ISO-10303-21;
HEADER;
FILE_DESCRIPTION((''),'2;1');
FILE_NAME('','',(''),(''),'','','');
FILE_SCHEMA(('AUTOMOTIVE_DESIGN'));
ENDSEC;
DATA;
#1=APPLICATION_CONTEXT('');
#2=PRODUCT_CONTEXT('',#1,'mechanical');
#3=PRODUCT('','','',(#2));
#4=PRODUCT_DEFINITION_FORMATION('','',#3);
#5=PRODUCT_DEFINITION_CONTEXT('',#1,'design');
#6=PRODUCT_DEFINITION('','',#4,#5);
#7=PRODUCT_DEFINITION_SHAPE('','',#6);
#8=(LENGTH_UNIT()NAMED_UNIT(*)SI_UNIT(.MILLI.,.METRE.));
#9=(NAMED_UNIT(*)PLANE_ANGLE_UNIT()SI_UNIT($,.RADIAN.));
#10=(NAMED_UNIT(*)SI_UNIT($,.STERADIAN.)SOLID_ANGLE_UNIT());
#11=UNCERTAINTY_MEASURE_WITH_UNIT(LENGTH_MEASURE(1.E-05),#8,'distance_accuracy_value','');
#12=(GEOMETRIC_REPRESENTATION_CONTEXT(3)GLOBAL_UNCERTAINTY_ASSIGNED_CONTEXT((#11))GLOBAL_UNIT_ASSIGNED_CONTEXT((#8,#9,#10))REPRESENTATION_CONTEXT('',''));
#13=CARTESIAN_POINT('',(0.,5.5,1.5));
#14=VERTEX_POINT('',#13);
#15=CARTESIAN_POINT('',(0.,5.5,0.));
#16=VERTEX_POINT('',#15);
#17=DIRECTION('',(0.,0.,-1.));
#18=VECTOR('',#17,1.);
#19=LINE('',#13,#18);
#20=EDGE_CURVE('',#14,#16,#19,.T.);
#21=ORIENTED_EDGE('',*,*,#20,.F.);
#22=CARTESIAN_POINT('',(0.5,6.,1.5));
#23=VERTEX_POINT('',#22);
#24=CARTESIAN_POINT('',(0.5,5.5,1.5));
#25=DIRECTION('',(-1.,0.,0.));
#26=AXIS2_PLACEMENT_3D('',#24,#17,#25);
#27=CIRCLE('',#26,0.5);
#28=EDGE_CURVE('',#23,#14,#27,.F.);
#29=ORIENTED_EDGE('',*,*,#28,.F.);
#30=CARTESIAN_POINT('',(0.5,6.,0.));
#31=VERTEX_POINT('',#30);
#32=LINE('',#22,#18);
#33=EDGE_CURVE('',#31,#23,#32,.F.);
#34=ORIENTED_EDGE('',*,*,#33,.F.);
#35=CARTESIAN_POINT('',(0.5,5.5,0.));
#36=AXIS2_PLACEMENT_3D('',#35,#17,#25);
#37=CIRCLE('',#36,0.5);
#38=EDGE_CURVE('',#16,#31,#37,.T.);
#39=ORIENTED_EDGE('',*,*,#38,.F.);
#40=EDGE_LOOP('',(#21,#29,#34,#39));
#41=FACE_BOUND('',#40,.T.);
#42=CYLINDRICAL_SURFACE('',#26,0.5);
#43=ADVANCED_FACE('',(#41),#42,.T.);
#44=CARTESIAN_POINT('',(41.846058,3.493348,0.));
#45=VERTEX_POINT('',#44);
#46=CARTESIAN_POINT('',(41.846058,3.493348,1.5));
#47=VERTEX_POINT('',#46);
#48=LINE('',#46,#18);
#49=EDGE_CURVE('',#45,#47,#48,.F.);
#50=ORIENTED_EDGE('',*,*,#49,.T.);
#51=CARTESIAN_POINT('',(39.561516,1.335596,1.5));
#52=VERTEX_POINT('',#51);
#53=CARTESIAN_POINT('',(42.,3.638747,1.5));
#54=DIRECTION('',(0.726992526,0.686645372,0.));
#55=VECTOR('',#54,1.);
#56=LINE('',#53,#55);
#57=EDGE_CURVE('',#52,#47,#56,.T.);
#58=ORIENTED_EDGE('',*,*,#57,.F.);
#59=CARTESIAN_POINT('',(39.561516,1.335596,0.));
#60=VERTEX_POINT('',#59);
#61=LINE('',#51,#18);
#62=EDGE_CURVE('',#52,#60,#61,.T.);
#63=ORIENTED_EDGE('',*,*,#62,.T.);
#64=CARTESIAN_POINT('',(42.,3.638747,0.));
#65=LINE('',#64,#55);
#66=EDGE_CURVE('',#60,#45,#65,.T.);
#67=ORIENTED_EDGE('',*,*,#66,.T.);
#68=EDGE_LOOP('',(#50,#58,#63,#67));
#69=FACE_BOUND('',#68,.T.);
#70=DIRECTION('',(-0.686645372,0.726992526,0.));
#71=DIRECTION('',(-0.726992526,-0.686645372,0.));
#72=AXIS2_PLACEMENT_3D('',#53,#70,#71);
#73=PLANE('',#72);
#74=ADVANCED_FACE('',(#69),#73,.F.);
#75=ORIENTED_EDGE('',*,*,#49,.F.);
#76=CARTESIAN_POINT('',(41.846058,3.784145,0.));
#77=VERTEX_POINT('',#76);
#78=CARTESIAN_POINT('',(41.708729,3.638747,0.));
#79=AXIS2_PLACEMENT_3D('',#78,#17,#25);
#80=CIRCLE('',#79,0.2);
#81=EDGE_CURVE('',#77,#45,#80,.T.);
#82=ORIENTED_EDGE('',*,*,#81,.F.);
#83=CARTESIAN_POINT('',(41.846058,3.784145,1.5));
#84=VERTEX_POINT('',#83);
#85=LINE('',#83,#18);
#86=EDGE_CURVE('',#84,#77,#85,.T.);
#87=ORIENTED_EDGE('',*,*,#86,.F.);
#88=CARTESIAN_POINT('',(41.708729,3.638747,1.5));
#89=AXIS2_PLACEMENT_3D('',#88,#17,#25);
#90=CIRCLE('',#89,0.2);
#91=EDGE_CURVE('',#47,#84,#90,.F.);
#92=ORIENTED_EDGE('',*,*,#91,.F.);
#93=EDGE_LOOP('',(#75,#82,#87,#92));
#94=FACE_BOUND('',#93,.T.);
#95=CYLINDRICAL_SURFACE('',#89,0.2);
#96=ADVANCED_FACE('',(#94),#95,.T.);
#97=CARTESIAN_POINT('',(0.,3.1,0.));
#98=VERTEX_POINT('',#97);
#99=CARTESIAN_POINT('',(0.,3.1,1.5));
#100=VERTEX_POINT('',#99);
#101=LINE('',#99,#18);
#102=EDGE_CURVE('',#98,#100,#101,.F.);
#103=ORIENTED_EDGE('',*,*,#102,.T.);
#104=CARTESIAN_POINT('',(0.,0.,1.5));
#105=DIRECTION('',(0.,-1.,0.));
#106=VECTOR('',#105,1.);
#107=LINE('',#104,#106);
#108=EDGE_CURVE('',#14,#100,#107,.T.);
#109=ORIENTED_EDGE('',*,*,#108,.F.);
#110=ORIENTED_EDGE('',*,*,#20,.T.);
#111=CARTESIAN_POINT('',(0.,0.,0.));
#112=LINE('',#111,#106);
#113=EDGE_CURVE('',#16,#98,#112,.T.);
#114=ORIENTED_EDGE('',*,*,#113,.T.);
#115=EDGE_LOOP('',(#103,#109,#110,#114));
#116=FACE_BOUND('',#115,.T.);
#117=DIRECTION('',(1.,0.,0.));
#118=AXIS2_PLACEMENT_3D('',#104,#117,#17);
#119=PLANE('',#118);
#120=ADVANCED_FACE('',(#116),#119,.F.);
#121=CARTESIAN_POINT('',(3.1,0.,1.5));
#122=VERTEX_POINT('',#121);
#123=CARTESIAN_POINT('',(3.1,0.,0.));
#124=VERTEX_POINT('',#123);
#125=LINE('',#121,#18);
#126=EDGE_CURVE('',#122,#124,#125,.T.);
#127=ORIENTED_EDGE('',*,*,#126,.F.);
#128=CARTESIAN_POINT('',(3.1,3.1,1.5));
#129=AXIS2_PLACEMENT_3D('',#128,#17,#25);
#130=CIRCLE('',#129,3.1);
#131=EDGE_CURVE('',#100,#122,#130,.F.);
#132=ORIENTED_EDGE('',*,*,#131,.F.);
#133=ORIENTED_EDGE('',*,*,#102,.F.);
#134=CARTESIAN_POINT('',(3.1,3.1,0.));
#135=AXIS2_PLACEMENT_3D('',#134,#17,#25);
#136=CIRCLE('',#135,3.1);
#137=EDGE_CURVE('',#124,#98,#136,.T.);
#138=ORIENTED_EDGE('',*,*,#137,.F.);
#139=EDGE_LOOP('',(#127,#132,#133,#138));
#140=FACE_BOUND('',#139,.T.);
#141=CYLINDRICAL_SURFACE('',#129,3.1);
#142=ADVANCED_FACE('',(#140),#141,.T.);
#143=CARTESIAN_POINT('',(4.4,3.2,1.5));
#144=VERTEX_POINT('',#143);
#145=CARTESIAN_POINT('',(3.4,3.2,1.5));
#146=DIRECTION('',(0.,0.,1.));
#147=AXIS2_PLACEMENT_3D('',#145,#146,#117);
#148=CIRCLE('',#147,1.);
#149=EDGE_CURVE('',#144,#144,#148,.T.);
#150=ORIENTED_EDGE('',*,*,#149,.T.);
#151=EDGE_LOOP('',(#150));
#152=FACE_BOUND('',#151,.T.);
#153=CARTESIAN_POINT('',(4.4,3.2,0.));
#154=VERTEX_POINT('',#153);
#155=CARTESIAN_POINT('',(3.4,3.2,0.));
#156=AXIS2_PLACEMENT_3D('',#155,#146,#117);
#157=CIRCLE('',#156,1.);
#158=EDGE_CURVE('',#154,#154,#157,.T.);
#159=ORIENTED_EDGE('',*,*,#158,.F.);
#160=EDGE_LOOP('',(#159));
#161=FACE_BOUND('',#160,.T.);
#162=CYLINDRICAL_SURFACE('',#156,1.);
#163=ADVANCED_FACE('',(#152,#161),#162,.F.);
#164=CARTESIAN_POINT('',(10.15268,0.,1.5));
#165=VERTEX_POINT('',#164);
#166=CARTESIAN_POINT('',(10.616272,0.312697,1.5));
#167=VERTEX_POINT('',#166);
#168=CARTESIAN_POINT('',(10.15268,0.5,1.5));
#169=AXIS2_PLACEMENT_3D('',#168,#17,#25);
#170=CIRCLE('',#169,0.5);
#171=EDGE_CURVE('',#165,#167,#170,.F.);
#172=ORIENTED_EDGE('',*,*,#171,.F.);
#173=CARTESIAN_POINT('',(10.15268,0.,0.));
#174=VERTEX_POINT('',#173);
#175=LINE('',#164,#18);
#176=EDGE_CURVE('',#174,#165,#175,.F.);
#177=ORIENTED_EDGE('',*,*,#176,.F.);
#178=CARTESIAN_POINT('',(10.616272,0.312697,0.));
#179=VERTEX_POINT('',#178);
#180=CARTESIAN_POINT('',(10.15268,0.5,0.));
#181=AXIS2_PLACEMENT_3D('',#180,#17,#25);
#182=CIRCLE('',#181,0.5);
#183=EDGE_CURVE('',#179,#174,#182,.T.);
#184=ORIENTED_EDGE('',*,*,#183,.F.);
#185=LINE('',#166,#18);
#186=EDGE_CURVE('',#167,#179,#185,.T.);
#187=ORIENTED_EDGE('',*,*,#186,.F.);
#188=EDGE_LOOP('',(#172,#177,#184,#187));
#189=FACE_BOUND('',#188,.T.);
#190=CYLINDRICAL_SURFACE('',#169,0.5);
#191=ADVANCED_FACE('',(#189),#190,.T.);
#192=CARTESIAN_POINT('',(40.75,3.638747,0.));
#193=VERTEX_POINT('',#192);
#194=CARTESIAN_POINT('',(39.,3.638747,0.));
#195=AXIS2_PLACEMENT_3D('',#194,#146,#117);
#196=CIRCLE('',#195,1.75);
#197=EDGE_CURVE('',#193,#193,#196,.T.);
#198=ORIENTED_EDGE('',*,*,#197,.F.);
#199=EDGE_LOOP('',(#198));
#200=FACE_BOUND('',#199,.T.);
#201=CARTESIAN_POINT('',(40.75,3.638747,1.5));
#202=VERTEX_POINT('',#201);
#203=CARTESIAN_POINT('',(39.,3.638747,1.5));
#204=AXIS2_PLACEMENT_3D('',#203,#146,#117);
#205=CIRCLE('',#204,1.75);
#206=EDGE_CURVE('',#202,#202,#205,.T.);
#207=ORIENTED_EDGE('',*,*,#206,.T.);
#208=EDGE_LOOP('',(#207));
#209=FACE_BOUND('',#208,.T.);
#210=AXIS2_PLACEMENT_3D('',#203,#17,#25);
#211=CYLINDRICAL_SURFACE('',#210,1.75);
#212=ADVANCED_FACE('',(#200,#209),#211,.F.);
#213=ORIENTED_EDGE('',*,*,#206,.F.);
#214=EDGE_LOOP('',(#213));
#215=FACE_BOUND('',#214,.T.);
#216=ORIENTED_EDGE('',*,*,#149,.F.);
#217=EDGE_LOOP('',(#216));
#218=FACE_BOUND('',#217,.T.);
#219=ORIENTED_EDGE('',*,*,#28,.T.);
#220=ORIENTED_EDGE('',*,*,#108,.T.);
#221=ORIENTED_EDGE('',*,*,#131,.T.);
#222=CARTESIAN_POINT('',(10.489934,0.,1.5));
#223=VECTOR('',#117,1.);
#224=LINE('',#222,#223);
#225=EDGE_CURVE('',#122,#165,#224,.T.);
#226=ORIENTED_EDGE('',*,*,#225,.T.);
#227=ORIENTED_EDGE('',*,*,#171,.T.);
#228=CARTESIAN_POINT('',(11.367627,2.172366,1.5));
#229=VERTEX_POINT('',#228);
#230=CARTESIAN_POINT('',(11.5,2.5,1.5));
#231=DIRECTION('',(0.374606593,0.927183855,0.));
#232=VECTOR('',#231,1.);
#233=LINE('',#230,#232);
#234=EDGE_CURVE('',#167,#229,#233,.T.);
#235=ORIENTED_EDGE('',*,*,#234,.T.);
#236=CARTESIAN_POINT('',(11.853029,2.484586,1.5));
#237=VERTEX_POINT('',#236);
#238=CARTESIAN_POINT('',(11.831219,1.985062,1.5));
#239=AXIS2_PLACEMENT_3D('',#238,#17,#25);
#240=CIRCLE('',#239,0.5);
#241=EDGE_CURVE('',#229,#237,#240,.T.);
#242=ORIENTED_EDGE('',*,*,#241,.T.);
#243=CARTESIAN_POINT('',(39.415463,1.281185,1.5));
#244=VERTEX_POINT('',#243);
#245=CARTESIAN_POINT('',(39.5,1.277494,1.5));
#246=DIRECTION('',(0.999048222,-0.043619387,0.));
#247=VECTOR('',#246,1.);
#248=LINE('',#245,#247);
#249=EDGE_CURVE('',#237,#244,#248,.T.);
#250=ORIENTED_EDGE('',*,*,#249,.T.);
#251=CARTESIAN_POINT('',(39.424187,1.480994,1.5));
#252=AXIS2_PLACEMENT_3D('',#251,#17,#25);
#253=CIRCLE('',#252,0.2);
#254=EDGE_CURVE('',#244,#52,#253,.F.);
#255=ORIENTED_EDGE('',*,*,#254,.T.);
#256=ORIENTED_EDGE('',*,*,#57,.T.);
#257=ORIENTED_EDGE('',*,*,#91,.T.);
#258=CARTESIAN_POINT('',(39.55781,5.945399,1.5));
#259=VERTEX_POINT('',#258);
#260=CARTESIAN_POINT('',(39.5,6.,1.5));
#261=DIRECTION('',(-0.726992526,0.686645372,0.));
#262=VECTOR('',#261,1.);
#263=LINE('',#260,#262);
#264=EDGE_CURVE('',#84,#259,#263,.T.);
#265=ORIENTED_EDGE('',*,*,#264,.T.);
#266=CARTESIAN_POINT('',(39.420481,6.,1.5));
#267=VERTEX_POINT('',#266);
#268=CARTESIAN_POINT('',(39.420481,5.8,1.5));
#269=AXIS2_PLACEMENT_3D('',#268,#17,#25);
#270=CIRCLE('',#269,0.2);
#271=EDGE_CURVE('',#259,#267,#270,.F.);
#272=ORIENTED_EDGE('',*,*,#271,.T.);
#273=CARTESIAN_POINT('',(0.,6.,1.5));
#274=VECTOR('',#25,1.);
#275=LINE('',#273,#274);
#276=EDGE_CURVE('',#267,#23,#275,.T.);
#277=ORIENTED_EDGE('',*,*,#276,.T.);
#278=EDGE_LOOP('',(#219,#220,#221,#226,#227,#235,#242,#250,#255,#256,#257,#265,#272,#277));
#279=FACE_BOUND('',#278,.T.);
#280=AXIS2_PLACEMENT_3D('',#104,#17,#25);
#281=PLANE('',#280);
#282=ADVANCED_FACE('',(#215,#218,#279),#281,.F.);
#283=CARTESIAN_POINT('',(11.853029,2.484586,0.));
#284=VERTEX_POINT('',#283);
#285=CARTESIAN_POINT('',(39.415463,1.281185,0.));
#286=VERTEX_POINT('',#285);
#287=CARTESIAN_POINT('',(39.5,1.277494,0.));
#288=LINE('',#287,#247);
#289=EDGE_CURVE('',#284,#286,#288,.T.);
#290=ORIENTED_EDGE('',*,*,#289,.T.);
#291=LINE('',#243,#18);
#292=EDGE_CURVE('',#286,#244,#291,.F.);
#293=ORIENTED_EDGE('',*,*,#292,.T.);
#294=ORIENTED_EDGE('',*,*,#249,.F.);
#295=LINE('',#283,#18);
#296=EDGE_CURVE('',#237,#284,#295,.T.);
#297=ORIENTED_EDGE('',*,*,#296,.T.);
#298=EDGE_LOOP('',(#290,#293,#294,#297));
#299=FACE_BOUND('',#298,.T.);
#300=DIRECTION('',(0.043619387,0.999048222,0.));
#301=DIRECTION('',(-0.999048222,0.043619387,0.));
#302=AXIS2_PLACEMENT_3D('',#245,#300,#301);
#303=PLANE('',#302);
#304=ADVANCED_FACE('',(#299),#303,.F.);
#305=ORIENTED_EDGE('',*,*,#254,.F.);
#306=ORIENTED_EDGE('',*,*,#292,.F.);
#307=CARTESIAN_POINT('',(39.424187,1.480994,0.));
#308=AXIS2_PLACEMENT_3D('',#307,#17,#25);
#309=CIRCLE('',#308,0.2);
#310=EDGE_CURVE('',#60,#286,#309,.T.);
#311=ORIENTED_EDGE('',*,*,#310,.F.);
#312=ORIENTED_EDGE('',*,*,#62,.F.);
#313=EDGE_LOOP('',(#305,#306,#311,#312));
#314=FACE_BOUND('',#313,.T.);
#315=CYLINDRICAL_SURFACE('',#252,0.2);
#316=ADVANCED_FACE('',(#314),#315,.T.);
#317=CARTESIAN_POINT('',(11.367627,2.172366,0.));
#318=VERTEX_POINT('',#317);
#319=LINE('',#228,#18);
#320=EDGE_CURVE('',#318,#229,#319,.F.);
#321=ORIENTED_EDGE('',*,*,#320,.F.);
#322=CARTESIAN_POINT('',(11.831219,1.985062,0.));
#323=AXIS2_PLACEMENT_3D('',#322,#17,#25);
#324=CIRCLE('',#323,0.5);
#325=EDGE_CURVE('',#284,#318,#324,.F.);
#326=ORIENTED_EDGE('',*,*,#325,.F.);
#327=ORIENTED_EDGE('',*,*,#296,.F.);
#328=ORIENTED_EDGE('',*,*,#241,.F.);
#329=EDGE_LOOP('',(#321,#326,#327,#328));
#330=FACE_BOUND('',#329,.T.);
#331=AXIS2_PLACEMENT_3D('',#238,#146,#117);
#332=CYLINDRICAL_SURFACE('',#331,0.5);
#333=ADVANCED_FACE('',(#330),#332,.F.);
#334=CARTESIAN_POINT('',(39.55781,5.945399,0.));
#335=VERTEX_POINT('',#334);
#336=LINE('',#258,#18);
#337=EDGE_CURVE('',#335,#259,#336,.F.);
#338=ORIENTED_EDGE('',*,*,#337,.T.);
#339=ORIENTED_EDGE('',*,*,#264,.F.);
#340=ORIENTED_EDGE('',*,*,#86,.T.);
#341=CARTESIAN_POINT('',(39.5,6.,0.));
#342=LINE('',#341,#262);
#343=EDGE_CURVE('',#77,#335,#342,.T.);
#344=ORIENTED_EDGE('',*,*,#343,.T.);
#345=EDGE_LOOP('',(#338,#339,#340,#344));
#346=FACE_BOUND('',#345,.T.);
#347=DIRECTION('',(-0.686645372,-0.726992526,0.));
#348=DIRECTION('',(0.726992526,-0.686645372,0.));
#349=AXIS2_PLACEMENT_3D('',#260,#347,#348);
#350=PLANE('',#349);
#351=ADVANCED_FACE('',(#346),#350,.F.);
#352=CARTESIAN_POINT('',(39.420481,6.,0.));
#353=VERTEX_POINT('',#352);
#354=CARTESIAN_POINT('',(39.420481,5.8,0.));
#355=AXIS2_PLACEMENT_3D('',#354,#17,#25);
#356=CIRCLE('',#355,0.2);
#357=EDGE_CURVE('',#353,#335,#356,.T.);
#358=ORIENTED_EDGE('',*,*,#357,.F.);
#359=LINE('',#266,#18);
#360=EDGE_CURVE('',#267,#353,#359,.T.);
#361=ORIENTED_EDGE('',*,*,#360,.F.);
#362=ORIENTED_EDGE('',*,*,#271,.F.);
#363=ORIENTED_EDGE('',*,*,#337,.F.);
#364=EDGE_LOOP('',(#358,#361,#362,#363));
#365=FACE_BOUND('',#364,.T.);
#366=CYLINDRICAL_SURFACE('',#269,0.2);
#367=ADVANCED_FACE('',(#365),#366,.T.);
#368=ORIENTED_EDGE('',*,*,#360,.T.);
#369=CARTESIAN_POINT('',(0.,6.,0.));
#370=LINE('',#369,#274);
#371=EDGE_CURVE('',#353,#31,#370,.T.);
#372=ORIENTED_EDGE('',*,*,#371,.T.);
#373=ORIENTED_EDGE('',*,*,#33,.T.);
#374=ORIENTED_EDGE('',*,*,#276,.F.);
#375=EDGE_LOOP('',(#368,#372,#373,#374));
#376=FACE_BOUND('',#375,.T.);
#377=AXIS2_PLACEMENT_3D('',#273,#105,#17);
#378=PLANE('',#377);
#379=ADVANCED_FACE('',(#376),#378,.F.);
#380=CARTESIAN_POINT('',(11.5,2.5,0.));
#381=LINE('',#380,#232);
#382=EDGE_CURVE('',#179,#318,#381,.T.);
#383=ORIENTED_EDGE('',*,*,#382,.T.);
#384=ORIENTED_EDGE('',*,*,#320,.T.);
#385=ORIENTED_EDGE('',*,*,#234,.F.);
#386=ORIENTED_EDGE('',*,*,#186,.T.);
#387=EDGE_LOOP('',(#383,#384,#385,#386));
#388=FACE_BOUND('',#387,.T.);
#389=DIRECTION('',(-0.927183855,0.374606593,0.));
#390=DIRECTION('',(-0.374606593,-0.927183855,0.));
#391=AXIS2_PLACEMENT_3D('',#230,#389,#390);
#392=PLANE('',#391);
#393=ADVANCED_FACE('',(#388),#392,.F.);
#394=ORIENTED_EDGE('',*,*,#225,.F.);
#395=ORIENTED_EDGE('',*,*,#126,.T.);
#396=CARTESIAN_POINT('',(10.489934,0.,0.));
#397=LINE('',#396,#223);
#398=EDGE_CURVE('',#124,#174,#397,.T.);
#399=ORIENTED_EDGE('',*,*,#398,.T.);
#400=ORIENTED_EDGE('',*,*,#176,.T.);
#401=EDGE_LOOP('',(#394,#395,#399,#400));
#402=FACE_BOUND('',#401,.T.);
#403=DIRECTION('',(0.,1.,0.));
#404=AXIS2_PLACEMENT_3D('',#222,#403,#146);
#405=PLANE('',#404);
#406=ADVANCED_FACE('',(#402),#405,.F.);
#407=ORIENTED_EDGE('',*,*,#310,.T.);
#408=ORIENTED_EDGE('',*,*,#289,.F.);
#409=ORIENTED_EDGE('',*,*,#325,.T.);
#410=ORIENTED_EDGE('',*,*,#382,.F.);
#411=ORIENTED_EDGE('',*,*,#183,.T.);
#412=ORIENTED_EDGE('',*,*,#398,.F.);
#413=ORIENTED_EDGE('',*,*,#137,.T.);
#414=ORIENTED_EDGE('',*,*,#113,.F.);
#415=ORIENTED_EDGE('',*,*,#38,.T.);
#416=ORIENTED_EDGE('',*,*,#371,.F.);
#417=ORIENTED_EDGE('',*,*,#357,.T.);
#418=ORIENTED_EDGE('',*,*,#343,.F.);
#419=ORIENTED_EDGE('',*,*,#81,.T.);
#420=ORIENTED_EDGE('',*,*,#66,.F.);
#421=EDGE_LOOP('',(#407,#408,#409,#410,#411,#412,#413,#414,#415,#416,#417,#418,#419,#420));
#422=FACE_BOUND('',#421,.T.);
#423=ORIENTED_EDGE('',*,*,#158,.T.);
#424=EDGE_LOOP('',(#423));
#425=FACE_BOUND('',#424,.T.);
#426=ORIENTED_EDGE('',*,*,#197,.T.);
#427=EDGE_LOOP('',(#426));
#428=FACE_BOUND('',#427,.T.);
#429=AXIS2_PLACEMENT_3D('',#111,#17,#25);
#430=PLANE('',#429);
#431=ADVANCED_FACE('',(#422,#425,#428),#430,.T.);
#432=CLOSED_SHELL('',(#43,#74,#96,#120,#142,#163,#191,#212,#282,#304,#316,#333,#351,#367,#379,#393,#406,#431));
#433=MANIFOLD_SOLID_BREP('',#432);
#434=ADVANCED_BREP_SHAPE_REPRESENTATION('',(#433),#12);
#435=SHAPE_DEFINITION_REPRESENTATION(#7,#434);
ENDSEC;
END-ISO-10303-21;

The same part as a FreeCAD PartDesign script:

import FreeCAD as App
import Part
import Sketcher
Q = App.Units.Quantity


def edges_at(feature, points):
    """Names of the edges that pass closest to the given points."""
    edges = feature.Shape.Edges
    near = lambda p: min(range(len(edges)), key=lambda i: edges[i].distToShape(Part.Vertex(*p))[0])
    return sorted({f"Edge{near(p) + 1}" for p in points})


def add_polygon(sketch, points):
    """Adds a closed chain of lines whose ends are joined by coincident constraints."""
    first, n = sketch.GeometryCount, len(points)
    for a, b in zip(points, points[1:] + points[:1]):
        sketch.addGeometry(Part.LineSegment(App.Vector(*a, 0), App.Vector(*b, 0)), False)
    for i in range(n):
        sketch.addConstraint(Sketcher.Constraint("Coincident", first + i, 2, first + (i + 1) % n, 1))

doc = App.newDocument("Part")
body = doc.addObject("PartDesign::Body", "Body")

# Sketch on XY plane
sketch1 = doc.addObject("Sketcher::SketchObject", "Sketch")
body.addObject(sketch1)
sketch1.AttachmentSupport = (doc.XY_Plane, [""])
sketch1.MapMode = "FlatFace"
add_polygon(sketch1, [(0, 6), (0, 0), (10.489934, 0), (11.5, 2.5), (39.5, 1.277494), (42, 3.638747), (39.5, 6)])  # lines 0-6
sketch1.addGeometry(Part.Circle(App.Vector(39, 3.638747, 0), App.Vector(0, 0, 1), 1.75), False)  # 7
sketch1.addConstraint(Sketcher.Constraint("Vertical", 0))
sketch1.addConstraint(Sketcher.Constraint("Horizontal", 1))
sketch1.addConstraint(Sketcher.Constraint("Horizontal", 6))
sketch1.addConstraint(Sketcher.Constraint("Coincident", 0, 2, -1, 1))
sketch1.addConstraint(Sketcher.Constraint("Horizontal", 7, 3, 4, 2))
sketch1.addConstraint(Sketcher.Constraint("Vertical", 3, 2, 5, 2))
sketch1.addConstraint(Sketcher.Constraint("Equal", 4, 5))
sketch1.addConstraint(Sketcher.Constraint("Diameter", 7, 3.5))
sketch1.addConstraint(Sketcher.Constraint("DistanceY", 0, 2, 0, 1, 6.0))
sketch1.addConstraint(Sketcher.Constraint("Angle", 2, Q("68 deg")))
sketch1.addConstraint(Sketcher.Constraint("DistanceX", 6, 2, 6, 1, 39.5))
sketch1.addConstraint(Sketcher.Constraint("DistanceX", -1, 1, 7, 3, 39.0))
sketch1.addConstraint(Sketcher.Constraint("DistanceX", -1, 1, 4, 2, 42.0))
sketch1.addConstraint(Sketcher.Constraint("Angle", 3, Q("-2.5 deg")))
sketch1.addConstraint(Sketcher.Constraint("DistanceX", 2, 2, 3, 2, 28.0))
sketch1.addConstraint(Sketcher.Constraint("DistanceY", -1, 1, 2, 2, 2.5))
pad1 = doc.addObject("PartDesign::Pad", "Pad")
body.addObject(pad1)
pad1.Profile = sketch1
pad1.Length = 1.5
doc.recompute()

fillet = doc.addObject("PartDesign::Fillet", "Fillet")
body.addObject(fillet)
fillet.Base = (pad1, edges_at(pad1, [(0, 6, 0.75), (11.5, 2.5, 0.75), (10.49, 0, 0.75)]))
fillet.Radius = 0.5
doc.recompute()

fillet2 = doc.addObject("PartDesign::Fillet", "Fillet001")
body.addObject(fillet2)
fillet2.Base = (fillet, edges_at(fillet, [(39.5, 6, 0.75), (42, 3.639, 0.75), (39.5, 1.277, 0.75)]))
fillet2.Radius = 0.2

# Sketch on XY plane
sketch2 = doc.addObject("Sketcher::SketchObject", "Sketch001")
body.addObject(sketch2)
sketch2.AttachmentSupport = (doc.XY_Plane, [""])
sketch2.MapMode = "FlatFace"
sketch2.AttachmentOffset = App.Placement(App.Vector(0, 0, 1.5), App.Rotation())
sketch2.addGeometry(Part.Circle(App.Vector(3.4, 3.2, 0), App.Vector(0, 0, 1), 1), False)
sketch2.addConstraint(Sketcher.Constraint("Diameter", 0, 2.0))
sketch2.addConstraint(Sketcher.Constraint("DistanceX", -1, 1, 0, 3, 3.4))
sketch2.addConstraint(Sketcher.Constraint("DistanceY", -1, 1, 0, 3, 3.2))
pocket1 = doc.addObject("PartDesign::Pocket", "Pocket")
body.addObject(pocket1)
pocket1.Profile = sketch2
pocket1.Type = "ThroughAll"
doc.recompute()

fillet3 = doc.addObject("PartDesign::Fillet", "Fillet002")
body.addObject(fillet3)
fillet3.Base = (pocket1, edges_at(pocket1, [(0, 0, 0.75)]))
fillet3.Radius = 3.1

doc.recompute()
